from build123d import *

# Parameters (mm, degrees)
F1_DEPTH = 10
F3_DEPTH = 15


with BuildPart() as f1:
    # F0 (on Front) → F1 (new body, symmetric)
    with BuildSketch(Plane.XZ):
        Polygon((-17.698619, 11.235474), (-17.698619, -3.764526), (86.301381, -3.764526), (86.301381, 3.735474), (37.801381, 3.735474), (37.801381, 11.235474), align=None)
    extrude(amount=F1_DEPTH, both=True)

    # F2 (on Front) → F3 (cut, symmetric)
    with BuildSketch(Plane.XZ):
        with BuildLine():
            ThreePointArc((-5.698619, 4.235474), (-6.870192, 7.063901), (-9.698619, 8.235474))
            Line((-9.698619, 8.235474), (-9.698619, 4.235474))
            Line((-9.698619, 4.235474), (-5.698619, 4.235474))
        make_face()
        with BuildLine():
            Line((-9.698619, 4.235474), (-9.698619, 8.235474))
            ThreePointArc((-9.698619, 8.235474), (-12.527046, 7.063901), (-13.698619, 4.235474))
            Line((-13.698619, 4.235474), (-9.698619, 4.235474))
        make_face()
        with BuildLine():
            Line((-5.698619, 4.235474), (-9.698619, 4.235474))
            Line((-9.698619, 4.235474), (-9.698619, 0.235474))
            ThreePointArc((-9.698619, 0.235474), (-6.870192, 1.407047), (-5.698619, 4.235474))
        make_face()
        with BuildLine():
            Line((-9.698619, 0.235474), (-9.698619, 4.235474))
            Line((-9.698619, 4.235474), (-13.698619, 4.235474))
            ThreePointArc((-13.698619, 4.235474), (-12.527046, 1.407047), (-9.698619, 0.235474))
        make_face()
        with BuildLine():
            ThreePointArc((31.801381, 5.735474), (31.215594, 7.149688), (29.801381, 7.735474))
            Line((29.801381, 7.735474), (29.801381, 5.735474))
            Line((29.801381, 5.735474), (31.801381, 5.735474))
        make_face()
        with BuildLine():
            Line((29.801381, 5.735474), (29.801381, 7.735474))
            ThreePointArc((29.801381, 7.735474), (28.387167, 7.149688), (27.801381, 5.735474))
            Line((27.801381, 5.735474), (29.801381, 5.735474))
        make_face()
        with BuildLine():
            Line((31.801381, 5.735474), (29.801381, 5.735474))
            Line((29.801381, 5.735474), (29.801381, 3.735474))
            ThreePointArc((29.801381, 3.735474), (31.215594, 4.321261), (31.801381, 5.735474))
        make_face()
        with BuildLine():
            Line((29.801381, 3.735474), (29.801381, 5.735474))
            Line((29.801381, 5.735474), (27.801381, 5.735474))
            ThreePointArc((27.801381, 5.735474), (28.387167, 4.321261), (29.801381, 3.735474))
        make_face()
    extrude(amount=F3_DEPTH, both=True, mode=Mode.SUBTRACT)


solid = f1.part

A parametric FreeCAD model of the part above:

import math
import FreeCAD as App
import Part
import Sketcher
from FreeCAD import Vector
Q = App.Units.Quantity


def add_polygon(sketch, points):
    """Adds a closed chain of lines whose ends are joined by coincident constraints."""
    first, n = sketch.GeometryCount, len(points)
    for a, b in zip(points, points[1:] + points[:1]):
        sketch.addGeometry(Part.LineSegment(App.Vector(*a, 0), App.Vector(*b, 0)), False)
    for i in range(n):
        sketch.addConstraint(Sketcher.Constraint("Coincident", first + i, 2, first + (i + 1) % n, 1))

doc = App.newDocument("Part")
body = doc.addObject("PartDesign::Body", "Body")

# Sketch on XZ plane
sketch1 = body.newObject("Sketcher::SketchObject", "Sketch")
sketch1.AttachmentSupport = (doc.getObject("XZ_Plane"), [""])
sketch1.MapMode = "FlatFace"
add_polygon(sketch1, [(-18, 11), (-18, -4), (86, -4), (86, 4), (38, 4), (38, 11)])  # lines 0-5
sketch1.addConstraint([
    Sketcher.Constraint("Vertical", 0),
    Sketcher.Constraint("Horizontal", 1),
    Sketcher.Constraint("Vertical", 2),
    Sketcher.Constraint("Horizontal", 3),
    Sketcher.Constraint("Vertical", 4),
    Sketcher.Constraint("Horizontal", 5),
    Sketcher.Constraint("Equal", 2, 4),
    Sketcher.Constraint("DistanceX", 1, 1, 1, 2, Q("104 mm")),
    Sketcher.Constraint("DistanceY", 0, 2, 0, 1, Q("15 mm")),
    Sketcher.Constraint("DistanceX", 3, 2, 3, 1, Q("48.5 mm")),
    Sketcher.Constraint("DistanceX", 0, 2, -1, 1, Q("17.698619 mm")),
    Sketcher.Constraint("DistanceY", 0, 2, -1, 1, Q("3.764526 mm")),
])
pad1 = body.newObject("PartDesign::Pad", "Pad")
pad1.Profile = sketch1
pad1.Length = 20
pad1.Midplane = True

# Sketch on XZ plane
sketch2 = body.newObject("Sketcher::SketchObject", "Sketch001")
sketch2.AttachmentSupport = (doc.getObject("XZ_Plane"), [""])
sketch2.MapMode = "FlatFace"
sketch2.addGeometry([
    Part.ArcOfCircle(Part.Circle(Vector(-9.7, 4.2, 0), Vector(0, 0, 1), 4), math.radians(0), math.radians(90)),  # 0
    Part.ArcOfCircle(Part.Circle(Vector(-9.7, 4.2, 0), Vector(0, 0, 1), 4), math.radians(90), math.radians(180)),  # 1
    Part.ArcOfCircle(Part.Circle(Vector(-9.7, 4.2, 0), Vector(0, 0, 1), 4), math.radians(-180), math.radians(-90)),  # 2
    Part.ArcOfCircle(Part.Circle(Vector(-9.7, 4.2, 0), Vector(0, 0, 1), 4), math.radians(-90), math.radians(0)),  # 3
    Part.ArcOfCircle(Part.Circle(Vector(29.8, 5.7, 0), Vector(0, 0, 1), 2), math.radians(0), math.radians(90)),  # 4
    Part.ArcOfCircle(Part.Circle(Vector(29.8, 5.7, 0), Vector(0, 0, 1), 2), math.radians(90), math.radians(180)),  # 5
    Part.ArcOfCircle(Part.Circle(Vector(29.8, 5.7, 0), Vector(0, 0, 1), 2), math.radians(-180), math.radians(-90)),  # 6
    Part.ArcOfCircle(Part.Circle(Vector(29.8, 5.7, 0), Vector(0, 0, 1), 2), math.radians(-90), math.radians(0)),  # 7
], False)
sketch2.addConstraint([
    Sketcher.Constraint("Tangent", 0, 2, 1, 1),
    Sketcher.Constraint("Tangent", 1, 2, 2, 1),
    Sketcher.Constraint("Tangent", 2, 2, 3, 1),
    Sketcher.Constraint("Tangent", 3, 2, 0, 1),
    Sketcher.Constraint("Tangent", 4, 2, 5, 1),
    Sketcher.Constraint("Tangent", 5, 2, 6, 1),
    Sketcher.Constraint("Tangent", 6, 2, 7, 1),
    Sketcher.Constraint("Tangent", 7, 2, 4, 1),
    Sketcher.Constraint("Equal", 0, 1),
    Sketcher.Constraint("Equal", 4, 5),
    Sketcher.Constraint("Horizontal", 3, 3, 1, 2),
    Sketcher.Constraint("Horizontal", 1, 2, 3, 2),
    Sketcher.Constraint("Horizontal", 7, 3, 5, 2),
    Sketcher.Constraint("Horizontal", 5, 2, 7, 2),
    Sketcher.Constraint("Vertical", 3, 3, 0, 2),
    Sketcher.Constraint("Vertical", 0, 2, 2, 2),
    Sketcher.Constraint("Vertical", 7, 3, 4, 2),
    Sketcher.Constraint("Vertical", 4, 2, 6, 2),
    Sketcher.Constraint("Radius", 0, Q("4 mm")),
    Sketcher.Constraint("Radius", 4, Q("2 mm")),
    Sketcher.Constraint("DistanceX", 2, 3, 4, 3, Q("39.499999 mm")),
    Sketcher.Constraint("DistanceY", 2, 3, 4, 3, Q("1.499999 mm")),
    Sketcher.Constraint("DistanceX", 0, 3, -1, 1, Q("9.698619 mm")),
    Sketcher.Constraint("DistanceY", -1, 1, 0, 3, Q("4.235474 mm")),
])
pocket1 = body.newObject("PartDesign::Pocket", "Pocket")
pocket1.Profile = sketch2
pocket1.Length = 30
pocket1.Midplane = True

doc.recompute()
